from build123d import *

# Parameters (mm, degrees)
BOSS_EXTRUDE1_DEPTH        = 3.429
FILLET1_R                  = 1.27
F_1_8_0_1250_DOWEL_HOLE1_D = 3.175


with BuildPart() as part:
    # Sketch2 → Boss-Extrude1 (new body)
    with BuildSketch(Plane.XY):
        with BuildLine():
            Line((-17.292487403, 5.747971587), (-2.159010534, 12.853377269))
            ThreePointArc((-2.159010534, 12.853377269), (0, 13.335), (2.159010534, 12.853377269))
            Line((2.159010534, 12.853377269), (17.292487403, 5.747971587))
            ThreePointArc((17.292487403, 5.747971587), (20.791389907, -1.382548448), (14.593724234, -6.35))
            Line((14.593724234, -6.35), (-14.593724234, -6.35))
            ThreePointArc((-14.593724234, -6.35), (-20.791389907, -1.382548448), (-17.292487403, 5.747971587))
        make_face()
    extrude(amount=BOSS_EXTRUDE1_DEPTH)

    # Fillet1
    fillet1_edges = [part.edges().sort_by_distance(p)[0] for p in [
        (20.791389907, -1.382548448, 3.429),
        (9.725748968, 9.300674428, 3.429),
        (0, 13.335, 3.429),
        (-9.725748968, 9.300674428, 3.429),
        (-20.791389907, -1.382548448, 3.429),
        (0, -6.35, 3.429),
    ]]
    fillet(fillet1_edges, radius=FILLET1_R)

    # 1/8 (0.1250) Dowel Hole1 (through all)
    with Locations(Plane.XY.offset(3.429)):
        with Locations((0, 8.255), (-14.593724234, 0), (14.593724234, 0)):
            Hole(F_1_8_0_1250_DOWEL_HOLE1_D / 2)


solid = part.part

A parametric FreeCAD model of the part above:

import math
import FreeCAD as App
import Part
import Sketcher

V = App.Vector
Q = App.Units.Quantity


def edges_at(feature, points):
    """Names of the edges that pass closest to the given points."""
    edges = feature.Shape.Edges
    near = lambda p: min(range(len(edges)), key=lambda i: edges[i].distToShape(Part.Vertex(*p))[0])
    return sorted({f"Edge{near(p) + 1}" for p in points})

doc = App.newDocument("Part")
params = doc.addObject("Spreadsheet::Sheet", "Params")
for row, (alias, value) in enumerate([
    ("sketch1_radius", "0.2 in"),
    ("sketch1_radius2", "0.25 in"),
    ("pad1_length", "0.135 in"),
    ("fillet_radius", "0.05 in"),
    ("sketch2_diameter", "0.125 in"),
    ("hole_diameter", "0.125 in"),
], start=1):
    params.set(f"A{row}", alias)
    params.set(f"B{row}", "=" + value)
    params.setAlias(f"B{row}", alias)

body = doc.addObject("PartDesign::Body", "Body")

# Sketch on XY plane
sketch1 = body.newObject("Sketcher::SketchObject", "Sketch")
sketch1.AttachmentSupport = (doc.getObject("XY_Plane"), [""])
sketch1.MapMode = "FlatFace"
sketch1.addGeometry([
    Part.LineSegment(V(-2.2, 12.9, 0), V(-17.3, 5.7, 0)),  # 0
    Part.ArcOfCircle(Part.Circle(V(-14.6, 0, 0), V(0, 0, 1), 6.3), math.radians(115), math.radians(270)),  # 1
    Part.LineSegment(V(-14.6, -6.3, 0), V(14.6, -6.3, 0)),  # 2
    Part.ArcOfCircle(Part.Circle(V(14.6, 0, 0), V(0, 0, 1), 6.3), math.radians(-90), math.radians(65)),  # 3
    Part.LineSegment(V(17.3, 5.7, 0), V(2.2, 12.9, 0)),  # 4
    Part.ArcOfCircle(Part.Circle(V(0, 8.3, 0), V(0, 0, 1), 5.1), math.radians(65), math.radians(115)),  # 5
], False)
sketch1.addConstraint([
    Sketcher.Constraint("Tangent", 0, 2, 1, 1),
    Sketcher.Constraint("Tangent", 1, 2, 2, 1),
    Sketcher.Constraint("Tangent", 2, 2, 3, 1),
    Sketcher.Constraint("Tangent", 3, 2, 4, 1),
    Sketcher.Constraint("Tangent", 4, 2, 5, 1),
    Sketcher.Constraint("Tangent", 5, 2, 0, 1),
    Sketcher.Constraint("Horizontal", 2),
    Sketcher.Constraint("Equal", 1, 3),
    Sketcher.Constraint("Symmetric", 1, 3, 3, 3, -1, 1),
    Sketcher.Constraint("PointOnObject", 5, 3, -2),
    Sketcher.Constraint("Radius", 5, Q("0.2 in")),
    Sketcher.Constraint("Radius", 1, Q("0.25 in")),
    Sketcher.Constraint("DistanceY", -1, 1, 5, 3, Q("0.325 in")),
    Sketcher.Constraint("DistanceX", 2, 1, 2, 2, 29.187448),
])
sketch1.setExpression("Constraints[10]", "Params.sketch1_radius")
sketch1.setExpression("Constraints[11]", "Params.sketch1_radius2")
pad1 = body.newObject("PartDesign::Pad", "Pad")
pad1.Profile = sketch1
pad1.setExpression("Length", "Params.pad1_length")
doc.recompute()

fillet = body.newObject("PartDesign::Fillet", "Fillet")
fillet.Base = (pad1, edges_at(pad1, [
    (20.791, -1.383, 3.429),
    (9.726, 9.301, 3.429),
    (0, 13.335, 3.429),
    (-9.726, 9.301, 3.429),
    (-20.791, -1.383, 3.429),
    (0, -6.35, 3.429),
]))
fillet.setExpression("Radius", "Params.fillet_radius")

# Sketch on XY plane
sketch2 = body.newObject("Sketcher::SketchObject", "Sketch001")
sketch2.AttachmentSupport = (doc.getObject("XY_Plane"), [""])
sketch2.MapMode = "FlatFace"
sketch2.AttachmentOffset = App.Placement(V(0, 0, 0.135 * 25.4), App.Rotation())
sketch2.addGeometry([
    Part.Circle(V(0, 8.3, 0), V(0, 0, 1), 1.6),
    Part.Circle(V(-14.6, 0, 0), V(0, 0, 1), 1.6),
    Part.Circle(V(14.6, 0, 0), V(0, 0, 1), 1.6),
], False)
sketch2.addConstraint([
    Sketcher.Constraint("Equal", 0, 1),
    Sketcher.Constraint("Equal", 1, 2),
    Sketcher.Constraint("Symmetric", 1, 3, 2, 3, -1, 1),
    Sketcher.Constraint("PointOnObject", 0, 3, -2),
    Sketcher.Constraint("PointOnObject", 1, 3, -1),
    Sketcher.Constraint("Diameter", 0, Q("0.125 in")),
    Sketcher.Constraint("DistanceY", -1, 1, 0, 3, Q("0.325 in")),
    Sketcher.Constraint("DistanceX", 1, 3, 2, 3, 29.187448),
])
sketch2.setExpression("Constraints[5]", "Params.sketch2_diameter")
doc.recompute()
hole = body.newObject("PartDesign::Hole", "Hole")
hole.Profile = sketch2
hole.ThreadType = "None"
hole.setExpression("Diameter", "Params.hole_diameter")
hole.DepthType = "ThroughAll"

doc.recompute()
